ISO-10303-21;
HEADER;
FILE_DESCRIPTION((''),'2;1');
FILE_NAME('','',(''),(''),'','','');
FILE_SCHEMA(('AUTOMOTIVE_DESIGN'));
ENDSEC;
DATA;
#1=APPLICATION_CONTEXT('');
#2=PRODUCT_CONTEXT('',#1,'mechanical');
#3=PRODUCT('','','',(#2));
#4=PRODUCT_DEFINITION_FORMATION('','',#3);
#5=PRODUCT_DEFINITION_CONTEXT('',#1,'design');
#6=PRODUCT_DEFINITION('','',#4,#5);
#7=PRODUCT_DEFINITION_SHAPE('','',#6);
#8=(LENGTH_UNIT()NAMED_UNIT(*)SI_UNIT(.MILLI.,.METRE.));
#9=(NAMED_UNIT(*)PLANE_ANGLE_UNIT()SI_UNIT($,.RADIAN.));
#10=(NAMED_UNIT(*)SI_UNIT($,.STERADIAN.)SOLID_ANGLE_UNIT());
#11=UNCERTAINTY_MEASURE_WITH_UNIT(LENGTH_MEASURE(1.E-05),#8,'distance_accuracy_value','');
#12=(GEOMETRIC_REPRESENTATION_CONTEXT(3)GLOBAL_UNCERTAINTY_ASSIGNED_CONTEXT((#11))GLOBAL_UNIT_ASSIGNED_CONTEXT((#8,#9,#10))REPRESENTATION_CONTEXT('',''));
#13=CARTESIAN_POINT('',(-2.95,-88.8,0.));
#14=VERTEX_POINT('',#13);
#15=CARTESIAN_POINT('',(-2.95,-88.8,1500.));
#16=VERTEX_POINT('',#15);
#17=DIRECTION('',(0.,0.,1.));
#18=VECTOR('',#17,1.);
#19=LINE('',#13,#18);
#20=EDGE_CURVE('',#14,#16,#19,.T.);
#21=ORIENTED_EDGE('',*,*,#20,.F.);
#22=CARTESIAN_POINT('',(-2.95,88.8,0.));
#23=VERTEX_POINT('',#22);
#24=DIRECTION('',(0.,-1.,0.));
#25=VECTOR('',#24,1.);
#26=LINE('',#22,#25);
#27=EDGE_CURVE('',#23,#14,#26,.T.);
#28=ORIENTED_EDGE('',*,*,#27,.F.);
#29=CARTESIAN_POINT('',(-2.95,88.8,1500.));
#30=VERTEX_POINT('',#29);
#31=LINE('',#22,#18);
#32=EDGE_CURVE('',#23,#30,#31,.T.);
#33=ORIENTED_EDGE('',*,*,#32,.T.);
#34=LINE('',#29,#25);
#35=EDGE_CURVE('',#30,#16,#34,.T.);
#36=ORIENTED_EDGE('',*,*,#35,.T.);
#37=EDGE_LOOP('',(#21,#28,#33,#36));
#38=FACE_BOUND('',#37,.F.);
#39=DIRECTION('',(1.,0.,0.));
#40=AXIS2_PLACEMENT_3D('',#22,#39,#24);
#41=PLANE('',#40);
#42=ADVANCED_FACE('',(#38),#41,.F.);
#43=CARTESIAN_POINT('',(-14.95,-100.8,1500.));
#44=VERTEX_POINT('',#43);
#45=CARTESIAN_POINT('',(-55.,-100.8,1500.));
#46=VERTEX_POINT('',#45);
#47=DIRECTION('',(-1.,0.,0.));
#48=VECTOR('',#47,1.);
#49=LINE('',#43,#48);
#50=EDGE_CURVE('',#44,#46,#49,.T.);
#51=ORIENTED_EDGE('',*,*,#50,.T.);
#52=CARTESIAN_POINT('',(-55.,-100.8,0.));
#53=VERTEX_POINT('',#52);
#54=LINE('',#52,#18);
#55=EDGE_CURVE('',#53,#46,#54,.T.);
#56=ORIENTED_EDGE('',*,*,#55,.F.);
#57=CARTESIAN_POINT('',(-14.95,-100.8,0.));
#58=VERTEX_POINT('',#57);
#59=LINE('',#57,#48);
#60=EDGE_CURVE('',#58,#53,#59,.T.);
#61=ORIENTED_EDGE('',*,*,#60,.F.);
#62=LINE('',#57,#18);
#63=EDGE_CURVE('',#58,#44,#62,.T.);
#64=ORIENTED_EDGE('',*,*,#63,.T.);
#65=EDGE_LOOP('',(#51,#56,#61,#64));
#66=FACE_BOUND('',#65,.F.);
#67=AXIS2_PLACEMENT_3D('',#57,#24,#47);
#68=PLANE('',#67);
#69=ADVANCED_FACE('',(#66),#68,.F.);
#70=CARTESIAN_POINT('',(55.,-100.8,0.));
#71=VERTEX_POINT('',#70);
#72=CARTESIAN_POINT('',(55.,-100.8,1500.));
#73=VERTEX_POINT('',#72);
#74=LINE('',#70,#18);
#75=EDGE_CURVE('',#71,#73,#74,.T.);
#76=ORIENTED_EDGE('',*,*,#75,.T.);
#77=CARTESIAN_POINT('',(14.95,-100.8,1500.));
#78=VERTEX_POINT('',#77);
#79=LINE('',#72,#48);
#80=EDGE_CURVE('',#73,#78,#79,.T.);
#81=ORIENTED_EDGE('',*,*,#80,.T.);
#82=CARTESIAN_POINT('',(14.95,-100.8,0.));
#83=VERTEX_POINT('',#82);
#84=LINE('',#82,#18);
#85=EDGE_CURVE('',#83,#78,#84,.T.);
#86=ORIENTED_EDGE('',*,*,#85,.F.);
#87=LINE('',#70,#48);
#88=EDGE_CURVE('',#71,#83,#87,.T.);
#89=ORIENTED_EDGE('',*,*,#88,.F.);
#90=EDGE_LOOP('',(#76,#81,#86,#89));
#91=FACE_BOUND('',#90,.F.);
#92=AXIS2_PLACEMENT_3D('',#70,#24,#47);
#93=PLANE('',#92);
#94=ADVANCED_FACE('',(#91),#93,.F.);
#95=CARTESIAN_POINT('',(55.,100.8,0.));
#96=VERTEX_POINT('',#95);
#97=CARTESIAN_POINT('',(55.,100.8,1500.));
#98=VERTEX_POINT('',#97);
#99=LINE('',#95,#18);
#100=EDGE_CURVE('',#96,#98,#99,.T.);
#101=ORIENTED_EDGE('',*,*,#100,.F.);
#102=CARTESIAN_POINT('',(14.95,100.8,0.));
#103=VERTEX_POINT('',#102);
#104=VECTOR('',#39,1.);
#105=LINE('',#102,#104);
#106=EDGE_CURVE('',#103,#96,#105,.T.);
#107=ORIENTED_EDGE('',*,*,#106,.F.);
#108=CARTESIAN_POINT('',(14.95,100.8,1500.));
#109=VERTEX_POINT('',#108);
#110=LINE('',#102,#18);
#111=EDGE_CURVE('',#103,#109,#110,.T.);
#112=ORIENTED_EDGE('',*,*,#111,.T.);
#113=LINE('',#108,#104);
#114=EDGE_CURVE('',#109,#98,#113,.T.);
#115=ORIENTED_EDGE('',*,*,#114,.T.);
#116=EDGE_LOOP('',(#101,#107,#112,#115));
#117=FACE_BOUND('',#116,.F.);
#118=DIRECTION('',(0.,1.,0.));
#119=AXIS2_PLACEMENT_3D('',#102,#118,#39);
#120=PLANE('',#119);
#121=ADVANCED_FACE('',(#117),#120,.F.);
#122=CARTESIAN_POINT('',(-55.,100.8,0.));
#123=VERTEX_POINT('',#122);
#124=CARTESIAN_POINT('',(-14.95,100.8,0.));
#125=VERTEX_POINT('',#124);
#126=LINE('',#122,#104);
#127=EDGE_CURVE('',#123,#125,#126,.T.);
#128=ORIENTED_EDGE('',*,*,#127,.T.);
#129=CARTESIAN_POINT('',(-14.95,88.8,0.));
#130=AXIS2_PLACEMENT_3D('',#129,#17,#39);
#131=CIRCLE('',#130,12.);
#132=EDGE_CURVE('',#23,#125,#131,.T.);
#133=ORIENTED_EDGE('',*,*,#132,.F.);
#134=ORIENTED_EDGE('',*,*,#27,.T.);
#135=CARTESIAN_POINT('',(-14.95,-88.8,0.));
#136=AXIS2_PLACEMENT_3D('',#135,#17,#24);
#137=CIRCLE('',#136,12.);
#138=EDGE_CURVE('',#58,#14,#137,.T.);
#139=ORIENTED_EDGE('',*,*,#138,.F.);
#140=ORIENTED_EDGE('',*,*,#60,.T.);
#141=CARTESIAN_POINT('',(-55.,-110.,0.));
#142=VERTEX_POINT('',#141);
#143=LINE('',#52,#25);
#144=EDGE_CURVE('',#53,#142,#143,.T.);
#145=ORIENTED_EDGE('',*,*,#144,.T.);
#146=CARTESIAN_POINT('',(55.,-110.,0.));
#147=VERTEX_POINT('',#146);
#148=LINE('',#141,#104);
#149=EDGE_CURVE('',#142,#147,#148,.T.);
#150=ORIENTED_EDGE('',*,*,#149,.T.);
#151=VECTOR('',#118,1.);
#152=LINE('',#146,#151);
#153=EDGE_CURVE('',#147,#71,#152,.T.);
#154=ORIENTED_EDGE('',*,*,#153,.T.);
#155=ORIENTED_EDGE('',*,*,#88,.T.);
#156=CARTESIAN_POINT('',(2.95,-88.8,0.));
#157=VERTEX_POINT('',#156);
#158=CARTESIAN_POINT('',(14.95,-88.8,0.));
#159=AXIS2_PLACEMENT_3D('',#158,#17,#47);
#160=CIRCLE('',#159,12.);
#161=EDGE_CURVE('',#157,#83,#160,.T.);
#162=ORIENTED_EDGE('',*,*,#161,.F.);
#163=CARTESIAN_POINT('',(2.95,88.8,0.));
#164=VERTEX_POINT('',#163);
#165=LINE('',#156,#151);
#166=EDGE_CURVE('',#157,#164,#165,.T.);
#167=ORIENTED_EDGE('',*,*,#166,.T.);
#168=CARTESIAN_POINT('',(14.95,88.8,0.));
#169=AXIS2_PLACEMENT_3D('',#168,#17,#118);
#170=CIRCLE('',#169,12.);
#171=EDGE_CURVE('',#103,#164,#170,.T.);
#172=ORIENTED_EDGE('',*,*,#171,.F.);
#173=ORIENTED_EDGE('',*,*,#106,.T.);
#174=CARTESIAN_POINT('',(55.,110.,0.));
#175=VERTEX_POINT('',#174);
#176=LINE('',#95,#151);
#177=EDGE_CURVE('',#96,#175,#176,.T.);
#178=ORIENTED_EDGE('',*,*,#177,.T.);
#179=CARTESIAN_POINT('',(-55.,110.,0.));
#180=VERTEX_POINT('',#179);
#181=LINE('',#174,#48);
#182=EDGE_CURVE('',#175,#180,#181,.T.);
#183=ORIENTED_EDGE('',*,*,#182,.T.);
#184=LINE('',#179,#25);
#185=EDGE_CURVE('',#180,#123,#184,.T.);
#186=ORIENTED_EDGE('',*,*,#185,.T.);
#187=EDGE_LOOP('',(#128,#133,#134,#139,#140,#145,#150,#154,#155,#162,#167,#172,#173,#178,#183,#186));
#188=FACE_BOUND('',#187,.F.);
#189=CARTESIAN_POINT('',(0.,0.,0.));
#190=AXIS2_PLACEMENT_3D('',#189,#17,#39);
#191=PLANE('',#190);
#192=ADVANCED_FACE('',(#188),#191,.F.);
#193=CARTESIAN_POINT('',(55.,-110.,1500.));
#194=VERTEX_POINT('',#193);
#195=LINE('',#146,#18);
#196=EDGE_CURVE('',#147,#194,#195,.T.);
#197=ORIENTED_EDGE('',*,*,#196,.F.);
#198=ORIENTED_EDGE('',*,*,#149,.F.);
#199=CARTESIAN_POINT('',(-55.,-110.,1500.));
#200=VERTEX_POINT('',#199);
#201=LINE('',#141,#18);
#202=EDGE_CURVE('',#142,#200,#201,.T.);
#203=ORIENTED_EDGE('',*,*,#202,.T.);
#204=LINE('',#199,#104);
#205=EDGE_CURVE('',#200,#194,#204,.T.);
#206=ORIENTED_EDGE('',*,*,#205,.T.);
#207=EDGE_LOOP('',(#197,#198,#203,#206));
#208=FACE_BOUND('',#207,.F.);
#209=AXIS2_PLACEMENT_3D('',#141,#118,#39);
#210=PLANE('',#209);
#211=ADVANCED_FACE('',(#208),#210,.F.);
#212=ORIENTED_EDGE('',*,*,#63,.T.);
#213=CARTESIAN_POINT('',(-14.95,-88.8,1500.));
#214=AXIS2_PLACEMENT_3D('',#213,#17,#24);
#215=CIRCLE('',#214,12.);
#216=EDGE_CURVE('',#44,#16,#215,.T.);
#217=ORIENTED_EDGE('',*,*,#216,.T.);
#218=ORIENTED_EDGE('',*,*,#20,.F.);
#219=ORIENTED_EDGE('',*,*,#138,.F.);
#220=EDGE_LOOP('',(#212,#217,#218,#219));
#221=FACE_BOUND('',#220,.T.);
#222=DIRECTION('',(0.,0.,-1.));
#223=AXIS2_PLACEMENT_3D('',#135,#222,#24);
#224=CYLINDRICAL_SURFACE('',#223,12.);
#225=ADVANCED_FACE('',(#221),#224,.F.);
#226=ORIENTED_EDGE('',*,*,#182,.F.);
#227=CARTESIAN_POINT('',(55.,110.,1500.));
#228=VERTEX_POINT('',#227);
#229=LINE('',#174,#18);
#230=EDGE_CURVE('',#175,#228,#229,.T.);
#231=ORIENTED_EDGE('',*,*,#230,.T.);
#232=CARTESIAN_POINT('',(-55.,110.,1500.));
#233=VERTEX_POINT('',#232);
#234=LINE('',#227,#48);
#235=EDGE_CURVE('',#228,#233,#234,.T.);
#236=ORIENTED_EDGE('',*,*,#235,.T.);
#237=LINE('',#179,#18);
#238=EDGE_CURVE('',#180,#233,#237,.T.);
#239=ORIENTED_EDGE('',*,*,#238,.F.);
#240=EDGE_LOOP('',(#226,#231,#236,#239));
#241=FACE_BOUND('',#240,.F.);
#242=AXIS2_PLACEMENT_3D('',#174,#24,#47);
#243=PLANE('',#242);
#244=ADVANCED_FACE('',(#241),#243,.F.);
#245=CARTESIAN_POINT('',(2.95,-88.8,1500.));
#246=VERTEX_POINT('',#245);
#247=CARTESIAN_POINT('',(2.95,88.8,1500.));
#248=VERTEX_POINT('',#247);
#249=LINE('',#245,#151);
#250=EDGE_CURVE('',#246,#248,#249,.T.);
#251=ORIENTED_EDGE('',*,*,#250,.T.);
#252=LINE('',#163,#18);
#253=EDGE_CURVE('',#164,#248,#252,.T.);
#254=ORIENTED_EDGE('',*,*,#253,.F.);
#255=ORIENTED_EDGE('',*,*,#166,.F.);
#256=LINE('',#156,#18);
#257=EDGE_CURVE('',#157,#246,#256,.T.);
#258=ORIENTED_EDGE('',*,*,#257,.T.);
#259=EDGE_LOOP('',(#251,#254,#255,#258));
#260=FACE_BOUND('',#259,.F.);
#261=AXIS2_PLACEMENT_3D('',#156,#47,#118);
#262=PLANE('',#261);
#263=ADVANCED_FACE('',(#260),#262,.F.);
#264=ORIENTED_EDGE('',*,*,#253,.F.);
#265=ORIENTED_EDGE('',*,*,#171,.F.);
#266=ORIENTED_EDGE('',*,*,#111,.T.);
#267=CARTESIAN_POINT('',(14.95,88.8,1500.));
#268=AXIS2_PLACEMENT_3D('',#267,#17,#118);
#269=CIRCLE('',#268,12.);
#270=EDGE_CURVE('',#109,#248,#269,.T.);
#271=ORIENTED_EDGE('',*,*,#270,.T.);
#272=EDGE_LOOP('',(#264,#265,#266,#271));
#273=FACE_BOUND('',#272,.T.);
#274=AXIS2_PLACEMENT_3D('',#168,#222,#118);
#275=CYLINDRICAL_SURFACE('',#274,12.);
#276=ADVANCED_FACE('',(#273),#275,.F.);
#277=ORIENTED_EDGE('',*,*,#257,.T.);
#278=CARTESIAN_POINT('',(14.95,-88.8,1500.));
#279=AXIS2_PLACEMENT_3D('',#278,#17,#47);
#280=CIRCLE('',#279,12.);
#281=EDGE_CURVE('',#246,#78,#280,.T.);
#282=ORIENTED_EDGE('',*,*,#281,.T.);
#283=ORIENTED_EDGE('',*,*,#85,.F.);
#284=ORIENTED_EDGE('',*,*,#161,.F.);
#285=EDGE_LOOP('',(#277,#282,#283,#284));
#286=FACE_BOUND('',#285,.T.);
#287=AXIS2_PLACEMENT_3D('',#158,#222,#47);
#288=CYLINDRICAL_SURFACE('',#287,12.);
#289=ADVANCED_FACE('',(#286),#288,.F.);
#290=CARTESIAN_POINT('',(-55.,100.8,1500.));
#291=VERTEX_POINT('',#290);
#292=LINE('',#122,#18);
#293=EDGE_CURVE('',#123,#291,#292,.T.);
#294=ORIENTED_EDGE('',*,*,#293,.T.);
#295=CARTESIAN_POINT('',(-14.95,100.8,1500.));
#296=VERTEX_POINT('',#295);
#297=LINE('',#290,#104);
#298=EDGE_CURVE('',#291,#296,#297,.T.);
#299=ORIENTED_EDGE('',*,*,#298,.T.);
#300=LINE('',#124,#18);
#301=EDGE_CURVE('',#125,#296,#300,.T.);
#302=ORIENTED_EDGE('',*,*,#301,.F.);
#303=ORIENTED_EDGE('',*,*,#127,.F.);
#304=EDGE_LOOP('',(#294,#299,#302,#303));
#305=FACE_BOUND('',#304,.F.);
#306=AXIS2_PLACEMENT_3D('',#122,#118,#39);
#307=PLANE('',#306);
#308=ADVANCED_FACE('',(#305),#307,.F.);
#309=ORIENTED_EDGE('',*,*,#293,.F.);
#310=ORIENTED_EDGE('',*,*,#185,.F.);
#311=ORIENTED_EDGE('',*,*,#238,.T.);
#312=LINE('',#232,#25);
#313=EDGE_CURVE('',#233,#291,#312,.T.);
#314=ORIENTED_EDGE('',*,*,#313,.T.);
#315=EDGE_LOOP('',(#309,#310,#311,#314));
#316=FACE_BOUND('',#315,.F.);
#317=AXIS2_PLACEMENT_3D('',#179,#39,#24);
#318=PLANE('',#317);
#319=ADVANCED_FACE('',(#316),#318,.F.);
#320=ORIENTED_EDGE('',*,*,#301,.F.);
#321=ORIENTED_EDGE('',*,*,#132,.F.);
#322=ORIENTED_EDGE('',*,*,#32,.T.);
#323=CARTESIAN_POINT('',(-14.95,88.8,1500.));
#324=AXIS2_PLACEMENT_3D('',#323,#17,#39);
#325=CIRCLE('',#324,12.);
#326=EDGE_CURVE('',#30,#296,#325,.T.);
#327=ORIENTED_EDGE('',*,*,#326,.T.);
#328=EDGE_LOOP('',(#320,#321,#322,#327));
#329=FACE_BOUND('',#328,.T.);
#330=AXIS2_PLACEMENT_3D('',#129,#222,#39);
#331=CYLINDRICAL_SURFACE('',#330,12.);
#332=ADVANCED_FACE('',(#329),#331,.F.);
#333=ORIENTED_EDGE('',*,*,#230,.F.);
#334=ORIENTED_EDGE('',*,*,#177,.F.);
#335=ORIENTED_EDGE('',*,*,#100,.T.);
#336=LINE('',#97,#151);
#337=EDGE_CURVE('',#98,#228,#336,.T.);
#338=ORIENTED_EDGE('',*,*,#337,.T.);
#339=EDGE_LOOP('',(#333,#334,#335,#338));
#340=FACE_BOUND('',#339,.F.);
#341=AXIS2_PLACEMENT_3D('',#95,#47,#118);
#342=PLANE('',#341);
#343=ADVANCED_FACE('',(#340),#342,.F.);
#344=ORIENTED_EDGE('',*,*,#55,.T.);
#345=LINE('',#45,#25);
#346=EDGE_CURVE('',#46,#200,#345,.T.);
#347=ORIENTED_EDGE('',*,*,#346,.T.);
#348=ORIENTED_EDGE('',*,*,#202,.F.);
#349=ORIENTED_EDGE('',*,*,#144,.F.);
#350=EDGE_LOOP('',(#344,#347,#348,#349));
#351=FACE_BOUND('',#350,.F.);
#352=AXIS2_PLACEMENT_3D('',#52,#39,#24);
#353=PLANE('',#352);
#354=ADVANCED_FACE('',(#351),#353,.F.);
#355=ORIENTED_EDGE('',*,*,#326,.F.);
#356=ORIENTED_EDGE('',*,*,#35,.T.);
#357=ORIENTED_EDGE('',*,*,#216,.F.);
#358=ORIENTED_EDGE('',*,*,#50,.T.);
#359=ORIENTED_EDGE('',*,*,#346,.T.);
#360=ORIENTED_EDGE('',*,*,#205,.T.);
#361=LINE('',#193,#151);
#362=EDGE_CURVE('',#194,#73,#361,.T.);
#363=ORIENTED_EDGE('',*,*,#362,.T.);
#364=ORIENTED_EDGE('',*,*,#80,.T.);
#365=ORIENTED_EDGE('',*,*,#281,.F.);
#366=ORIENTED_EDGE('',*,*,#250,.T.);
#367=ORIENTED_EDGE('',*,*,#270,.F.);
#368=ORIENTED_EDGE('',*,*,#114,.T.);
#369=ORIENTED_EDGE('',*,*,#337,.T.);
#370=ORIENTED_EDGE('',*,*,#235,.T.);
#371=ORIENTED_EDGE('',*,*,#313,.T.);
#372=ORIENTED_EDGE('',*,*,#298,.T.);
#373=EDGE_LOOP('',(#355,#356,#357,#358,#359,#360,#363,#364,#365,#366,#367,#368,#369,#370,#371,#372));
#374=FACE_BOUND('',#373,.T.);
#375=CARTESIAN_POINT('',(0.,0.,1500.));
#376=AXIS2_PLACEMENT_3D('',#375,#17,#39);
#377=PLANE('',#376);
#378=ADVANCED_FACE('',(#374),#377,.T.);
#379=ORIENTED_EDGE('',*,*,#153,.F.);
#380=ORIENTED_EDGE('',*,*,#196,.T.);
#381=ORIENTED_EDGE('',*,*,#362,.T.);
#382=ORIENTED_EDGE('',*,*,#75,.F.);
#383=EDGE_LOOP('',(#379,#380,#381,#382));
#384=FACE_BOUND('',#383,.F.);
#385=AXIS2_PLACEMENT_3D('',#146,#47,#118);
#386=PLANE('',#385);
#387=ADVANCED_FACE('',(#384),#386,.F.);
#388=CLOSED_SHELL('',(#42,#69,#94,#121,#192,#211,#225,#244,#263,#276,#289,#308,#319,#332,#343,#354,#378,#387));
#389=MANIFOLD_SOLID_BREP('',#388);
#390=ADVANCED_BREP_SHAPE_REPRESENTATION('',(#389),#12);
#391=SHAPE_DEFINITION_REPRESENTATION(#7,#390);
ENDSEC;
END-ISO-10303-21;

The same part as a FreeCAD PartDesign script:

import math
import FreeCAD as App
import Part
import Sketcher

V = App.Vector

doc = App.newDocument("Part")
body = doc.addObject("PartDesign::Body", "Body")

# Sketch on XY plane
sketch1 = doc.addObject("Sketcher::SketchObject", "Sketch")
body.addObject(sketch1)
sketch1.AttachmentSupport = (doc.XY_Plane, [""])
sketch1.MapMode = "FlatFace"
sketch1.addGeometry(Part.LineSegment(V(-55, 110, 0), V(-55, 100.8, 0)), False)
sketch1.addGeometry(Part.LineSegment(V(-55, 100.8, 0), V(-14.95, 100.8, 0)), False)
sketch1.addGeometry(Part.ArcOfCircle(Part.Circle(V(-14.95, 88.8, 0), V(0, 0, 1), 12), math.radians(0), math.radians(90)), False)
sketch1.addGeometry(Part.LineSegment(V(-2.95, 88.8, 0), V(-2.95, -88.8, 0)), False)
sketch1.addGeometry(Part.ArcOfCircle(Part.Circle(V(-14.95, -88.8, 0), V(0, 0, 1), 12), math.radians(-90), math.radians(0)), False)
sketch1.addGeometry(Part.LineSegment(V(-14.95, -100.8, 0), V(-55, -100.8, 0)), False)
sketch1.addGeometry(Part.LineSegment(V(-55, -100.8, 0), V(-55, -110, 0)), False)
sketch1.addGeometry(Part.LineSegment(V(-55, -110, 0), V(55, -110, 0)), False)
sketch1.addGeometry(Part.LineSegment(V(55, -110, 0), V(55, -100.8, 0)), False)
sketch1.addGeometry(Part.LineSegment(V(55, -100.8, 0), V(14.95, -100.8, 0)), False)
sketch1.addGeometry(Part.ArcOfCircle(Part.Circle(V(14.95, -88.8, 0), V(0, 0, 1), 12), math.radians(180), math.radians(270)), False)
sketch1.addGeometry(Part.LineSegment(V(2.95, -88.8, 0), V(2.95, 88.8, 0)), False)
sketch1.addGeometry(Part.ArcOfCircle(Part.Circle(V(14.95, 88.8, 0), V(0, 0, 1), 12), math.radians(90), math.radians(180)), False)
sketch1.addGeometry(Part.LineSegment(V(14.95, 100.8, 0), V(55, 100.8, 0)), False)
sketch1.addGeometry(Part.LineSegment(V(55, 100.8, 0), V(55, 110, 0)), False)
sketch1.addGeometry(Part.LineSegment(V(55, 110, 0), V(-55, 110, 0)), False)
sketch1.addConstraint(Sketcher.Constraint("Coincident", 0, 2, 1, 1))
sketch1.addConstraint(Sketcher.Constraint("Tangent", 1, 2, 2, 2))
sketch1.addConstraint(Sketcher.Constraint("Tangent", 2, 1, 3, 1))
sketch1.addConstraint(Sketcher.Constraint("Tangent", 3, 2, 4, 2))
sketch1.addConstraint(Sketcher.Constraint("Tangent", 4, 1, 5, 1))
sketch1.addConstraint(Sketcher.Constraint("Coincident", 5, 2, 6, 1))
sketch1.addConstraint(Sketcher.Constraint("Coincident", 6, 2, 7, 1))
sketch1.addConstraint(Sketcher.Constraint("Coincident", 7, 2, 8, 1))
sketch1.addConstraint(Sketcher.Constraint("Coincident", 8, 2, 9, 1))
sketch1.addConstraint(Sketcher.Constraint("Tangent", 9, 2, 10, 2))
sketch1.addConstraint(Sketcher.Constraint("Tangent", 10, 1, 11, 1))
sketch1.addConstraint(Sketcher.Constraint("Tangent", 11, 2, 12, 2))
sketch1.addConstraint(Sketcher.Constraint("Tangent", 12, 1, 13, 1))
sketch1.addConstraint(Sketcher.Constraint("Coincident", 13, 2, 14, 1))
sketch1.addConstraint(Sketcher.Constraint("Coincident", 14, 2, 15, 1))
sketch1.addConstraint(Sketcher.Constraint("Coincident", 15, 2, 0, 1))
sketch1.addConstraint(Sketcher.Constraint("Vertical", 0))
sketch1.addConstraint(Sketcher.Constraint("Horizontal", 1))
sketch1.addConstraint(Sketcher.Constraint("Vertical", 3))
sketch1.addConstraint(Sketcher.Constraint("Horizontal", 5))
sketch1.addConstraint(Sketcher.Constraint("Vertical", 6))
sketch1.addConstraint(Sketcher.Constraint("Horizontal", 7))
sketch1.addConstraint(Sketcher.Constraint("Vertical", 8))
sketch1.addConstraint(Sketcher.Constraint("Horizontal", 9))
sketch1.addConstraint(Sketcher.Constraint("Vertical", 11))
sketch1.addConstraint(Sketcher.Constraint("Horizontal", 13))
sketch1.addConstraint(Sketcher.Constraint("Vertical", 14))
sketch1.addConstraint(Sketcher.Constraint("Horizontal", 15))
sketch1.addConstraint(Sketcher.Constraint("Equal", 2, 4))
sketch1.addConstraint(Sketcher.Constraint("Equal", 4, 10))
sketch1.addConstraint(Sketcher.Constraint("Equal", 10, 12))
sketch1.addConstraint(Sketcher.Constraint("Symmetric", 2, 3, 10, 3, -1, 1))
sketch1.addConstraint(Sketcher.Constraint("Symmetric", 5, 2, 13, 2, -1, 1))
sketch1.addConstraint(Sketcher.Constraint("Symmetric", 7, 2, 15, 2, -1, 1))
sketch1.addConstraint(Sketcher.Constraint("Symmetric", 5, 2, 8, 2, -2))
sketch1.addConstraint(Sketcher.Constraint("Radius", 2, 12.0))
sketch1.addConstraint(Sketcher.Constraint("DistanceX", 7, 1, 7, 2, 110.0))
sketch1.addConstraint(Sketcher.Constraint("DistanceY", 0, 2, 0, 1, 9.2))
sketch1.addConstraint(Sketcher.Constraint("DistanceY", 6, 2, -1, 1, 110.0))
sketch1.addConstraint(Sketcher.Constraint("DistanceX", 3, 2, 10, 1, 5.9))
pad1 = doc.addObject("PartDesign::Pad", "Pad")
body.addObject(pad1)
pad1.Profile = sketch1
pad1.Length = 1500

doc.recompute()
